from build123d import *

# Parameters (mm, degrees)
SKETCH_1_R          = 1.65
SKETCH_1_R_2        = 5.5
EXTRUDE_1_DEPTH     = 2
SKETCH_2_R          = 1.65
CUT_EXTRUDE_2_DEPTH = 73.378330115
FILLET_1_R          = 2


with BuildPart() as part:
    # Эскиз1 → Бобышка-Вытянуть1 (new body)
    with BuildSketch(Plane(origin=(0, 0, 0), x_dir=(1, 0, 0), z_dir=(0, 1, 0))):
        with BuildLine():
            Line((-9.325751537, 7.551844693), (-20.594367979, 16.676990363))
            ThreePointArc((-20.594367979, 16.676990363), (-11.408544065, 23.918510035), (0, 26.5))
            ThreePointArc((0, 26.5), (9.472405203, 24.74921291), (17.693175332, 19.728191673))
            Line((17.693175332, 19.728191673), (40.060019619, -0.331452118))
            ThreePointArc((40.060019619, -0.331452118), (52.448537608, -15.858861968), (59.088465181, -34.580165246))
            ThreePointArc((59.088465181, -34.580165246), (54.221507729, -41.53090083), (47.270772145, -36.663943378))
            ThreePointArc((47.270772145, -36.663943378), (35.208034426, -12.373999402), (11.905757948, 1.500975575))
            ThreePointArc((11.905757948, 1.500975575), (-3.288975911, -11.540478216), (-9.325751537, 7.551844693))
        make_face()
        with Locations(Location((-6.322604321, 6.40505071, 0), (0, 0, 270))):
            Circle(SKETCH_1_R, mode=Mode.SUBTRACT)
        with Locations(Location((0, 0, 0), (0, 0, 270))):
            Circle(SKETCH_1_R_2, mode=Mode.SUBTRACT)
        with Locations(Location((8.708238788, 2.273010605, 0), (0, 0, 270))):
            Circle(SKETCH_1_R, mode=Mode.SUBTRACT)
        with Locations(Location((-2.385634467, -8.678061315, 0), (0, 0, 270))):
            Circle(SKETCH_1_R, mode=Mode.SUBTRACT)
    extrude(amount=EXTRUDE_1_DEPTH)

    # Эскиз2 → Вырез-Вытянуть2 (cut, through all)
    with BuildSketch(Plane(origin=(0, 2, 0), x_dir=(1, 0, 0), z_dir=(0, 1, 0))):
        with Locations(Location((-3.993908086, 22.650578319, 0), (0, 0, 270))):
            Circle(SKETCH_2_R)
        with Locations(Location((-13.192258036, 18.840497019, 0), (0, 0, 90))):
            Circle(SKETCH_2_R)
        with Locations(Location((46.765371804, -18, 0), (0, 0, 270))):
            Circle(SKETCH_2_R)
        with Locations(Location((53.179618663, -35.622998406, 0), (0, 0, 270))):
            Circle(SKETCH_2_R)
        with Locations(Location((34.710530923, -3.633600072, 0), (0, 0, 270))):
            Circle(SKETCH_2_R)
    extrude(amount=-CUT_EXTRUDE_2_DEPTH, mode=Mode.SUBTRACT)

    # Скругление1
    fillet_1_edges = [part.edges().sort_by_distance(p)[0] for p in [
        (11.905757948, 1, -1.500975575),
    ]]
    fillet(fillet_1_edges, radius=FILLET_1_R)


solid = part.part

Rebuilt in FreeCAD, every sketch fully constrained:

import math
import FreeCAD as App
import Part
import Sketcher
from FreeCAD import Vector
Q = App.Units.Quantity


def edges_at(feature, points):
    """Names of the edges that pass closest to the given points."""
    edges = feature.Shape.Edges
    near = lambda p: min(range(len(edges)), key=lambda i: edges[i].distToShape(Part.Vertex(*p))[0])
    return sorted({f"Edge{near(p) + 1}" for p in points})

doc = App.newDocument("Part")
body = doc.addObject("PartDesign::Body", "Body")

# Sketch on XZ plane
sketch1 = body.newObject("Sketcher::SketchObject", "Sketch")
sketch1.AttachmentSupport = (doc.getObject("XZ_Plane"), [""])
sketch1.MapMode = "FlatFace"
sketch1.addGeometry(Part.LineSegment(Vector(-20.594368, -16.67699, 0), Vector(-9.325752, -7.551845, 0)), False)
sketch1.addGeometry(Part.ArcOfCircle(Part.Circle(Vector(0, 0, 0), Vector(0, 0, 1), 12), math.radians(-7.185451), math.radians(219)), False)
sketch1.addGeometry(Part.ArcOfCircle(Part.Circle(Vector(0, 44.999056, 0), Vector(0, 0, 1), 48), math.radians(-75.63864), math.radians(-10)), False)
sketch1.addGeometry(Part.ArcOfCircle(Part.Circle(Vector(53.179619, 35.622054, 0), Vector(0, 0, 1), 6), math.radians(-10), math.radians(170)), False)
sketch1.addGeometry(Part.ArcOfCircle(Part.Circle(Vector(0, 44.999056, 0), Vector(0, 0, 1), 60), math.radians(-48.112743), math.radians(-10)), False)
sketch1.addGeometry(Part.LineSegment(Vector(40.06002, 0.331452, 0), Vector(17.693175, -19.728192, 0)), False)
sketch1.addGeometry(Part.ArcOfCircle(Part.Circle(Vector(0, 0, 0), Vector(0, 0, 1), 26.5), math.radians(-90), math.radians(-48.112743)), False)
sketch1.addGeometry(Part.ArcOfCircle(Part.Circle(Vector(0, 0, 0), Vector(0, 0, 1), 26.5), math.radians(-141), math.radians(-90)), False)
sketch1.addGeometry(Part.Circle(Vector(-2.385634, 8.678061, 0), Vector(0, 0, 1), 1.65), False)
sketch1.addGeometry(Part.Circle(Vector(8.708239, -2.273011, 0), Vector(0, 0, 1), 1.65), False)
sketch1.addGeometry(Part.Circle(Vector(0, 0, 0), Vector(0, 0, 1), 5.5), False)
sketch1.addGeometry(Part.Circle(Vector(-6.322604, -6.405051, 0), Vector(0, 0, 1), 1.65), False)
sketch1.addConstraint(Sketcher.Constraint("Coincident", 0, 2, 1, 2))
sketch1.addConstraint(Sketcher.Constraint("Coincident", 1, 1, 2, 1))
sketch1.addConstraint(Sketcher.Constraint("Tangent", 2, 2, 3, 2))
sketch1.addConstraint(Sketcher.Constraint("Tangent", 3, 1, 4, 2))
sketch1.addConstraint(Sketcher.Constraint("Tangent", 4, 1, 5, 1))
sketch1.addConstraint(Sketcher.Constraint("Tangent", 5, 2, 6, 2))
sketch1.addConstraint(Sketcher.Constraint("Tangent", 6, 1, 7, 2))
sketch1.addConstraint(Sketcher.Constraint("Coincident", 7, 1, 0, 1))
sketch1.addConstraint(Sketcher.Constraint("Coincident", 1, 3, -1, 1))
sketch1.addConstraint(Sketcher.Constraint("Coincident", 6, 3, -1, 1))
sketch1.addConstraint(Sketcher.Constraint("Coincident", 10, 3, -1, 1))
sketch1.addConstraint(Sketcher.Constraint("Coincident", 4, 3, 2, 3))
sketch1.addConstraint(Sketcher.Constraint("Equal", 6, 7))
sketch1.addConstraint(Sketcher.Constraint("Equal", 8, 9))
sketch1.addConstraint(Sketcher.Constraint("Equal", 9, 11))
sketch1.addConstraint(Sketcher.Constraint("PointOnObject", 2, 3, -2))
sketch1.addConstraint(Sketcher.Constraint("PointOnObject", 6, 1, -2))
sketch1.addConstraint(Sketcher.Constraint("Diameter", 10, 11.0))
sketch1.addConstraint(Sketcher.Constraint("Radius", 1, 12.0))
sketch1.addConstraint(Sketcher.Constraint("Radius", 2, 48.0))
sketch1.addConstraint(Sketcher.Constraint("Radius", 3, 6.0))
sketch1.addConstraint(Sketcher.Constraint("Diameter", 8, 3.3))
sketch1.addConstraint(Sketcher.Constraint("Radius", 6, 26.5))
sketch1.addConstraint(Sketcher.Constraint("Angle", 0, Q("39 deg")))
sketch1.addConstraint(Sketcher.Constraint("DistanceY", 3, 3, 2, 3, 9.377002))
sketch1.addConstraint(Sketcher.Constraint("DistanceX", 4, 1, 3, 3, 13.119599))
sketch1.addConstraint(Sketcher.Constraint("DistanceY", -1, 1, 8, 3, 8.678061))
sketch1.addConstraint(Sketcher.Constraint("DistanceX", -1, 1, 9, 3, 8.708239))
sketch1.addConstraint(Sketcher.Constraint("DistanceY", 9, 3, -1, 1, 2.273011))
sketch1.addConstraint(Sketcher.Constraint("DistanceY", 11, 3, -1, 1, 6.405051))
sketch1.addConstraint(Sketcher.Constraint("DistanceX", 0, 2, -1, 1, 9.325752))
sketch1.addConstraint(Sketcher.Constraint("DistanceX", 11, 3, 8, 3, 3.93697))
sketch1.addConstraint(Sketcher.Constraint("DistanceX", 8, 3, -1, 1, 2.385634))
pad1 = body.newObject("PartDesign::Pad", "Pad")
pad1.Profile = sketch1
pad1.Length = 2
pad1.Reversed = True

# Sketch on XZ plane
sketch2 = body.newObject("Sketcher::SketchObject", "Sketch001")
sketch2.AttachmentSupport = (doc.getObject("XZ_Plane"), [""])
sketch2.MapMode = "FlatFace"
sketch2.AttachmentOffset = App.Placement(Vector(0, 0, -2), App.Rotation())
sketch2.addGeometry(Part.Circle(Vector(-3.993908, -22.650578, 0), Vector(0, 0, 1), 1.65), False)
sketch2.addGeometry(Part.Circle(Vector(-13.192258, -18.840497, 0), Vector(0, 0, 1), 1.65), False)
sketch2.addGeometry(Part.Circle(Vector(46.765372, 18, 0), Vector(0, 0, 1), 1.65), False)
sketch2.addGeometry(Part.Circle(Vector(53.179619, 35.622998, 0), Vector(0, 0, 1), 1.65), False)
sketch2.addGeometry(Part.Circle(Vector(34.710531, 3.6336, 0), Vector(0, 0, 1), 1.65), False)
sketch2.addConstraint(Sketcher.Constraint("Equal", 0, 1))
sketch2.addConstraint(Sketcher.Constraint("Equal", 1, 2))
sketch2.addConstraint(Sketcher.Constraint("Equal", 2, 3))
sketch2.addConstraint(Sketcher.Constraint("Equal", 3, 4))
sketch2.addConstraint(Sketcher.Constraint("Diameter", 0, 3.3))
sketch2.addConstraint(Sketcher.Constraint("DistanceY", -1, 1, 2, 3, 18.0))
sketch2.addConstraint(Sketcher.Constraint("DistanceY", -1, 1, 3, 3, 35.622998))
sketch2.addConstraint(Sketcher.Constraint("DistanceY", -1, 1, 4, 3, 3.6336))
sketch2.addConstraint(Sketcher.Constraint("DistanceX", 0, 3, -1, 1, 3.993908))
sketch2.addConstraint(Sketcher.Constraint("DistanceY", 0, 3, -1, 1, 22.650578))
sketch2.addConstraint(Sketcher.Constraint("DistanceX", 1, 3, -1, 1, 13.192258))
sketch2.addConstraint(Sketcher.Constraint("DistanceX", -1, 1, 2, 3, 46.765372))
sketch2.addConstraint(Sketcher.Constraint("DistanceX", -1, 1, 3, 3, 53.179619))
sketch2.addConstraint(Sketcher.Constraint("DistanceX", -1, 1, 4, 3, 34.710531))
sketch2.addConstraint(Sketcher.Constraint("DistanceY", 0, 3, 1, 3, 3.810081))
pocket1 = body.newObject("PartDesign::Pocket", "Pocket")
pocket1.Profile = sketch2
pocket1.Type = "ThroughAll"
pocket1.Reversed = True
doc.recompute()

fillet = body.newObject("PartDesign::Fillet", "Fillet")
fillet.Base = (pocket1, edges_at(pocket1, [(11.906, 1, -1.501)]))
fillet.Radius = 2

doc.recompute()
